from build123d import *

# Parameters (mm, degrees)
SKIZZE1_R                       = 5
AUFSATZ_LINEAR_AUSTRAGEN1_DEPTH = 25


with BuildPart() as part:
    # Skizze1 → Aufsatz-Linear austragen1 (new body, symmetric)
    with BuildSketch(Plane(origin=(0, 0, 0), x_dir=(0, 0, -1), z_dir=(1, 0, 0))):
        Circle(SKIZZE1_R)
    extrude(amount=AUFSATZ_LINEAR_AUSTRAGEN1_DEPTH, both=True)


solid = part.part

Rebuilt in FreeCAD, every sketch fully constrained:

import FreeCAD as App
import Part
import Sketcher
from FreeCAD import Vector

doc = App.newDocument("Part")
body = doc.addObject("PartDesign::Body", "Body")

# Sketch on YZ plane
sketch1 = body.newObject("Sketcher::SketchObject", "Sketch")
sketch1.AttachmentSupport = (doc.getObject("YZ_Plane"), [""])
sketch1.MapMode = "FlatFace"
sketch1.addGeometry(Part.Circle(Vector(0, 0, 0), Vector(0, 0, 1), 5), False)
sketch1.addConstraint([
    Sketcher.Constraint("Coincident", 0, 3, -1, 1),
    Sketcher.Constraint("Diameter", 0, 10.0),
])
pad1 = body.newObject("PartDesign::Pad", "Pad")
pad1.Profile = sketch1
pad1.Length = 50
pad1.Midplane = True

doc.recompute()
